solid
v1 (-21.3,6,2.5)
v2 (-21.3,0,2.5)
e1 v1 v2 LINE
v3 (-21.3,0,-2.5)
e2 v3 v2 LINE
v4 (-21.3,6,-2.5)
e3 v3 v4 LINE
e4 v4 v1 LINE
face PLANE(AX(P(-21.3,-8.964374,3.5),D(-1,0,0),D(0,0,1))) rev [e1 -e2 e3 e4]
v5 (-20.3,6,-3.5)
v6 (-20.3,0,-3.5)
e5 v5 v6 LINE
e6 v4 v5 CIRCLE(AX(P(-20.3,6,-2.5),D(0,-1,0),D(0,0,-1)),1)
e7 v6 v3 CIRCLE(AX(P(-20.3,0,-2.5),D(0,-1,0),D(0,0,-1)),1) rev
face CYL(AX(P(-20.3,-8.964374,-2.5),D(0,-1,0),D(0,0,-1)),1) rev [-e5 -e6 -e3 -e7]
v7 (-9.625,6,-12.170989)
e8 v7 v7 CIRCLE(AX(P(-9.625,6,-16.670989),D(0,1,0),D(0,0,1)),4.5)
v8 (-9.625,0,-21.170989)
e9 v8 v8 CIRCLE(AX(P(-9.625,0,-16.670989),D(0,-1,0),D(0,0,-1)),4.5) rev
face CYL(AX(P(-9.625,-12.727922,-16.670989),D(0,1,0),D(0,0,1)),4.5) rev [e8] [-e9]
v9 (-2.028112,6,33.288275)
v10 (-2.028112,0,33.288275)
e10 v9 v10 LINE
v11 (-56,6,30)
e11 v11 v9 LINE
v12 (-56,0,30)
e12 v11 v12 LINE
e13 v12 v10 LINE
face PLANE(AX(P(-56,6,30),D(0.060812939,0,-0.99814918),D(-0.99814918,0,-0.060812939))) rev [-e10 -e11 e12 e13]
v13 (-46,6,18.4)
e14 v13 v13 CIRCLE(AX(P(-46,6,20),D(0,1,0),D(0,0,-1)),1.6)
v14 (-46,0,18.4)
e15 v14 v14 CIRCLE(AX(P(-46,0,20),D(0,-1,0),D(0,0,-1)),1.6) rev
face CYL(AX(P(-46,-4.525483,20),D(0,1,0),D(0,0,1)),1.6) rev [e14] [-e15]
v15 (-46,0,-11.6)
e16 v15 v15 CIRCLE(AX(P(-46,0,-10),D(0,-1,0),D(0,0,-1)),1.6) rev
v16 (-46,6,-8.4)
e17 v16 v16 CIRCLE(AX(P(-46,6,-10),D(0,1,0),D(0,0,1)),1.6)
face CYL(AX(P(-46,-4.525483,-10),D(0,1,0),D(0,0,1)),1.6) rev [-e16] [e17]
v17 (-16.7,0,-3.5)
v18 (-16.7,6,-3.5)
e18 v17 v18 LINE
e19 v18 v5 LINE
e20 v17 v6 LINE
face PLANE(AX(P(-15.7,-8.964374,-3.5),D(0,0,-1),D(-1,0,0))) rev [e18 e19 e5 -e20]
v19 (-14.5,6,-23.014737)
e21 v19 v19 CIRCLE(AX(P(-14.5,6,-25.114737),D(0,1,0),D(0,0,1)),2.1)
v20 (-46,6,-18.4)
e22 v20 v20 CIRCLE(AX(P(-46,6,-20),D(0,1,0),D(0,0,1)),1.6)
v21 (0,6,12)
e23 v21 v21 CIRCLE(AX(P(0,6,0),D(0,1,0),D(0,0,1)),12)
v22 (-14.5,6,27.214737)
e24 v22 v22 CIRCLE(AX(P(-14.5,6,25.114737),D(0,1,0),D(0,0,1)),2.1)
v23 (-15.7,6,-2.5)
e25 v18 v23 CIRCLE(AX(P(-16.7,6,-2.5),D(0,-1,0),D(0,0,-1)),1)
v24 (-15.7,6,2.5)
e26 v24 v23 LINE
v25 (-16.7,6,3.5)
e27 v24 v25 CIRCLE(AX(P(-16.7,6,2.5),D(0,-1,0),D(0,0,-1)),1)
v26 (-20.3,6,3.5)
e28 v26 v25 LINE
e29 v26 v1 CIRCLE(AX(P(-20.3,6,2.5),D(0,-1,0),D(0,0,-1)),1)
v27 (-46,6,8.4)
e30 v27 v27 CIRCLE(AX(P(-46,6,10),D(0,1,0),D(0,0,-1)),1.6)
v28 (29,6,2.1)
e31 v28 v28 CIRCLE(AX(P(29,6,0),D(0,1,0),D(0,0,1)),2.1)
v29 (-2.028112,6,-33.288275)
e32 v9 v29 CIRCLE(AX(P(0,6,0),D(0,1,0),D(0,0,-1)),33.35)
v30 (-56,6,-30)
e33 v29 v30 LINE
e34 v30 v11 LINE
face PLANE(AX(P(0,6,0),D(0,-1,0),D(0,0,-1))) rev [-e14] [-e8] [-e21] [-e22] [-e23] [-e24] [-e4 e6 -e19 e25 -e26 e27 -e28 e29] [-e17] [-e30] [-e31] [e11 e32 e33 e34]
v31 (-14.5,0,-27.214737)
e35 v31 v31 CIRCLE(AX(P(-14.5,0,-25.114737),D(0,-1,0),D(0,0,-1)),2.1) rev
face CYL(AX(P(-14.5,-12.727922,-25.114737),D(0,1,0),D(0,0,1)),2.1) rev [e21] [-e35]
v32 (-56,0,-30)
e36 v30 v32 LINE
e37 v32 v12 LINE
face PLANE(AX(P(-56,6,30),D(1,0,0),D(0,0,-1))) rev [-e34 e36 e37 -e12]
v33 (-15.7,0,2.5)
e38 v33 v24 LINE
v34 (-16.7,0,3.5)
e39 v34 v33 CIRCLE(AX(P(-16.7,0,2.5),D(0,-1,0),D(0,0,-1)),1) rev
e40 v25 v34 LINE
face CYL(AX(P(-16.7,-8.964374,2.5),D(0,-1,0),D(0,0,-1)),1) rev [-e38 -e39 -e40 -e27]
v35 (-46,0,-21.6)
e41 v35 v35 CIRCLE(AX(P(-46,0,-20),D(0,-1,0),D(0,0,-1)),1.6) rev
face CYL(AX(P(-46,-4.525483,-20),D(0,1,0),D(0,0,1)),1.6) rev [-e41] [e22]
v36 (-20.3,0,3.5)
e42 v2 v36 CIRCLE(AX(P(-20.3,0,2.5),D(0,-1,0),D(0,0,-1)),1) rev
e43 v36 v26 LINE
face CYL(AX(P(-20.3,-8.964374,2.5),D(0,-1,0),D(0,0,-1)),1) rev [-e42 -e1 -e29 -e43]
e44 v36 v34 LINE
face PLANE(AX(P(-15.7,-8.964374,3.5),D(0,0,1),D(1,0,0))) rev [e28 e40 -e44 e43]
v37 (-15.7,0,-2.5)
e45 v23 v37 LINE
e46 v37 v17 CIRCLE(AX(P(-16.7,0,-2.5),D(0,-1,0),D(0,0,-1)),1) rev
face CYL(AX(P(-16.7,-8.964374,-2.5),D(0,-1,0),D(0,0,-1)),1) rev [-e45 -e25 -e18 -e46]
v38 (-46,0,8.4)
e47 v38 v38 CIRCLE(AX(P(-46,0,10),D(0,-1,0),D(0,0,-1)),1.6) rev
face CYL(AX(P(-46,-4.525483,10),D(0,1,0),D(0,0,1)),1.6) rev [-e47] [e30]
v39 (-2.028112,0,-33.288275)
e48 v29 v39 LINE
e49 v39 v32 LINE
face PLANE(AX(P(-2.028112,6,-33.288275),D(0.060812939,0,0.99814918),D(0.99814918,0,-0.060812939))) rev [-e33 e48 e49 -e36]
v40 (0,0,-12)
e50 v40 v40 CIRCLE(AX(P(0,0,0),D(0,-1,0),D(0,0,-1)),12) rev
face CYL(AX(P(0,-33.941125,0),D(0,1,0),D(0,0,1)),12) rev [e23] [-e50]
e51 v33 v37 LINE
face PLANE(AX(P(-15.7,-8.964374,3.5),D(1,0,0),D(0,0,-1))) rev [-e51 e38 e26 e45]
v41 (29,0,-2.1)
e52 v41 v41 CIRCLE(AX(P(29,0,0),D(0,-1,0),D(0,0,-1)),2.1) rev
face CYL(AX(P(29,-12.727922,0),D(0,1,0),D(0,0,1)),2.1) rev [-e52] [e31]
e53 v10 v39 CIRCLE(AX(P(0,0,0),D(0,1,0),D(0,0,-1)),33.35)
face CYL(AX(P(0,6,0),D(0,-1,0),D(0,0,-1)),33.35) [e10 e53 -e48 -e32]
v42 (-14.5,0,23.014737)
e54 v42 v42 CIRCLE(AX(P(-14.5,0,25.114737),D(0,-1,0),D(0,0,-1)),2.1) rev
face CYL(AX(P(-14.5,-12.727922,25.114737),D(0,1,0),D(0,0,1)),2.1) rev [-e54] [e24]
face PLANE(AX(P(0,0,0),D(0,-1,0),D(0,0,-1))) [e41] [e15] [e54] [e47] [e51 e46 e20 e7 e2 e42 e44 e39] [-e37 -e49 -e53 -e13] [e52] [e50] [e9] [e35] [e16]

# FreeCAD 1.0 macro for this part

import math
import FreeCAD as App
import Part
import Sketcher

V = App.Vector


def edges_at(feature, points):
    """Names of the edges that pass closest to the given points."""
    edges = feature.Shape.Edges
    near = lambda p: min(range(len(edges)), key=lambda i: edges[i].distToShape(Part.Vertex(*p))[0])
    return sorted({f"Edge{near(p) + 1}" for p in points})

doc = App.newDocument("Part")
body = doc.addObject("PartDesign::Body", "Body")

# Sketch on XZ plane
sketch1 = doc.addObject("Sketcher::SketchObject", "Sketch")
body.addObject(sketch1)
sketch1.AttachmentSupport = (doc.XZ_Plane, [""])
sketch1.MapMode = "FlatFace"
sketch1.addGeometry([
    Part.LineSegment(V(-56, -30, 0), V(-56, 30, 0)),
    Part.LineSegment(V(-56, 30, 0), V(-2.028112, 33.288275, 0)),
    Part.ArcOfCircle(Part.Circle(V(0, 0, 0), V(0, 0, 1), 33.35), math.radians(-93.486476), math.radians(93.486476)),
    Part.LineSegment(V(-2.028112, -33.288275, 0), V(-56, -30, 0)),
], False)
sketch1.addConstraint([
    Sketcher.Constraint("Coincident", 0, 2, 1, 1),
    Sketcher.Constraint("Tangent", 1, 2, 2, 2),
    Sketcher.Constraint("Tangent", 2, 1, 3, 1),
    Sketcher.Constraint("Coincident", 3, 2, 0, 1),
    Sketcher.Constraint("Vertical", 0),
    Sketcher.Constraint("Coincident", 2, 3, -1, 1),
    Sketcher.Constraint("Vertical", 1, 2, 2, 1),
    Sketcher.Constraint("DistanceY", 0, 1, 0, 2, 60.0),
    Sketcher.Constraint("Radius", 2, 33.35),
    Sketcher.Constraint("DistanceX", 0, 2, -1, 1, 56.0),
])
pad1 = doc.addObject("PartDesign::Pad", "Pad")
body.addObject(pad1)
pad1.Profile = sketch1
pad1.Length = 6
pad1.Reversed = True

# Sketch on XZ plane
sketch2 = doc.addObject("Sketcher::SketchObject", "Sketch001")
body.addObject(sketch2)
sketch2.AttachmentSupport = (doc.XZ_Plane, [""])
sketch2.MapMode = "FlatFace"
sketch2.AttachmentOffset = App.Placement(V(0, 0, -6), App.Rotation())
sketch2.addGeometry(Part.Circle(V(0, 0, 0), V(0, 0, 1), 12), False)
sketch2.addConstraint([
    Sketcher.Constraint("Coincident", 0, 3, -1, 1),
    Sketcher.Constraint("Diameter", 0, 24.0),
])
pocket1 = doc.addObject("PartDesign::Pocket", "Pocket")
body.addObject(pocket1)
pocket1.Profile = sketch2
pocket1.Length = 6
pocket1.Reversed = True

# Sketch on XZ plane
sketch3 = doc.addObject("Sketcher::SketchObject", "Sketch002")
body.addObject(sketch3)
sketch3.AttachmentSupport = (doc.XZ_Plane, [""])
sketch3.MapMode = "FlatFace"
sketch3.AttachmentOffset = App.Placement(V(0, 0, -6), App.Rotation())
sketch3.addGeometry([
    Part.Circle(V(-46, -20, 0), V(0, 0, 1), 1.6),
    Part.Circle(V(-46, -10, 0), V(0, 0, 1), 1.6),
    Part.Circle(V(-46, 20, 0), V(0, 0, 1), 1.6),
    Part.Circle(V(-46, 10, 0), V(0, 0, 1), 1.6),
], False)
sketch3.addConstraint([
    Sketcher.Constraint("Equal", 0, 1),
    Sketcher.Constraint("Equal", 1, 2),
    Sketcher.Constraint("Equal", 2, 3),
    Sketcher.Constraint("Symmetric", 0, 3, 2, 3, -1),
    Sketcher.Constraint("Symmetric", 1, 3, 3, 3, -1),
    Sketcher.Constraint("Vertical", 0, 3, 1, 3),
    Sketcher.Constraint("Diameter", 0, 3.2),
    Sketcher.Constraint("DistanceX", 0, 3, -1, 1, 46.0),
    Sketcher.Constraint("DistanceY", 0, 3, -1, 1, 20.0),
    Sketcher.Constraint("DistanceY", 1, 3, -1, 1, 10.0),
])
pocket2 = doc.addObject("PartDesign::Pocket", "Pocket001")
body.addObject(pocket2)
pocket2.Profile = sketch3
pocket2.Length = 6
pocket2.Reversed = True

# Sketch on XZ plane
sketch4 = doc.addObject("Sketcher::SketchObject", "Sketch003")
body.addObject(sketch4)
sketch4.AttachmentSupport = (doc.XZ_Plane, [""])
sketch4.MapMode = "FlatFace"
sketch4.AttachmentOffset = App.Placement(V(0, 0, -6), App.Rotation())
sketch4.addGeometry([
    Part.Circle(V(-9.625, -16.670989, 0), V(0, 0, 1), 4.5),
    Part.Circle(V(29, 0, 0), V(0, 0, 1), 2.1),
    Part.Circle(V(-14.5, 25.114737, 0), V(0, 0, 1), 2.1),
    Part.Circle(V(-14.5, -25.114737, 0), V(0, 0, 1), 2.1),
], False)
sketch4.addConstraint([
    Sketcher.Constraint("Equal", 1, 2),
    Sketcher.Constraint("Equal", 2, 3),
    Sketcher.Constraint("Symmetric", 2, 3, 3, 3, -1),
    Sketcher.Constraint("PointOnObject", 1, 3, -1),
    Sketcher.Constraint("Diameter", 0, 9.0),
    Sketcher.Constraint("Diameter", 1, 4.2),
    Sketcher.Constraint("DistanceX", -1, 1, 1, 3, 29.0),
    Sketcher.Constraint("DistanceX", 2, 3, -1, 1, 14.5),
    Sketcher.Constraint("DistanceX", 0, 3, -1, 1, 9.625),
    Sketcher.Constraint("DistanceY", 0, 3, -1, 1, 16.670989),
    Sketcher.Constraint("DistanceY", -1, 1, 2, 3, 25.114737),
])
pocket3 = doc.addObject("PartDesign::Pocket", "Pocket002")
body.addObject(pocket3)
pocket3.Profile = sketch4
pocket3.Length = 6
pocket3.Reversed = True

# Sketch on XZ plane
sketch5 = doc.addObject("Sketcher::SketchObject", "Sketch004")
body.addObject(sketch5)
sketch5.AttachmentSupport = (doc.XZ_Plane, [""])
sketch5.MapMode = "FlatFace"
sketch5.AttachmentOffset = App.Placement(V(0, 0, -6), App.Rotation())
sketch5.addGeometry([
    Part.LineSegment(V(-21.3, -3.5, 0), V(-21.3, 3.5, 0)),
    Part.LineSegment(V(-21.3, 3.5, 0), V(-15.7, 3.5, 0)),
    Part.LineSegment(V(-15.7, 3.5, 0), V(-15.7, -3.5, 0)),
    Part.LineSegment(V(-15.7, -3.5, 0), V(-21.3, -3.5, 0)),
], False)
sketch5.addConstraint([
    Sketcher.Constraint("Coincident", 0, 2, 1, 1),
    Sketcher.Constraint("Coincident", 1, 2, 2, 1),
    Sketcher.Constraint("Coincident", 2, 2, 3, 1),
    Sketcher.Constraint("Coincident", 3, 2, 0, 1),
    Sketcher.Constraint("Vertical", 0),
    Sketcher.Constraint("Horizontal", 1),
    Sketcher.Constraint("Vertical", 2),
    Sketcher.Constraint("Horizontal", 3),
    Sketcher.Constraint("DistanceY", 0, 1, 0, 2, 7.0),
    Sketcher.Constraint("DistanceX", 1, 1, 1, 2, 5.6),
    Sketcher.Constraint("DistanceX", 0, 2, -1, 1, 21.3),
    Sketcher.Constraint("DistanceY", -1, 1, 0, 2, 3.5),
])
pocket4 = doc.addObject("PartDesign::Pocket", "Pocket003")
body.addObject(pocket4)
pocket4.Profile = sketch5
pocket4.Length = 6
pocket4.Reversed = True
doc.recompute()

fillet = doc.addObject("PartDesign::Fillet", "Fillet")
body.addObject(fillet)
fillet.Base = (pocket4, edges_at(pocket4, [
    (-15.7, 3, 3.5),
    (-15.7, 3, -3.5),
    (-21.3, 3, -3.5),
    (-21.3, 3, 3.5),
]))
fillet.Radius = 1

doc.recompute()
